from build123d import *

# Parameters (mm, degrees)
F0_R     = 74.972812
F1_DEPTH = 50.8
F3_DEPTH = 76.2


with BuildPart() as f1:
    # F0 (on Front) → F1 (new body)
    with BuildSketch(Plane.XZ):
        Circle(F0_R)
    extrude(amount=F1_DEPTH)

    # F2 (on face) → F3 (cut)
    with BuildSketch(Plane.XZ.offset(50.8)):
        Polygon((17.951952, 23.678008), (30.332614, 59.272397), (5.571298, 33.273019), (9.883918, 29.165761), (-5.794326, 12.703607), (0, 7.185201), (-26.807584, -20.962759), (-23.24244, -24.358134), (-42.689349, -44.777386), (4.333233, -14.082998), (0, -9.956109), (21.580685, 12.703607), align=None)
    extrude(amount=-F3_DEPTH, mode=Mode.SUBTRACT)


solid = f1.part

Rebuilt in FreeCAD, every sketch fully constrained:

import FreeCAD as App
import Part
import Sketcher
from FreeCAD import Vector
Q = App.Units.Quantity


def add_polygon(sketch, points):
    """Adds a closed chain of lines whose ends are joined by coincident constraints."""
    first, n = sketch.GeometryCount, len(points)
    for a, b in zip(points, points[1:] + points[:1]):
        sketch.addGeometry(Part.LineSegment(App.Vector(*a, 0), App.Vector(*b, 0)), False)
    for i in range(n):
        sketch.addConstraint(Sketcher.Constraint("Coincident", first + i, 2, first + (i + 1) % n, 1))

doc = App.newDocument("Part")
body = doc.addObject("PartDesign::Body", "Body")

sketch1 = doc.addObject("Sketcher::SketchObject", "Sketch")
body.addObject(sketch1)
sketch1.AttachmentSupport = (doc.XZ_Plane, [""])
sketch1.MapMode = "FlatFace"
sketch1.addGeometry(Part.Circle(Vector(0, 0, 0), Vector(0, 0, 1), 75), False)
sketch1.addConstraint(Sketcher.Constraint("Coincident", 0, 3, -1, 1))
sketch1.addConstraint(Sketcher.Constraint("Diameter", 0, Q("149.945624 mm")))
pad1 = doc.addObject("PartDesign::Pad", "Pad")
body.addObject(pad1)
pad1.Profile = sketch1
pad1.Length = Q("2 in")

sketch2 = doc.addObject("Sketcher::SketchObject", "Sketch001")
body.addObject(sketch2)
sketch2.AttachmentSupport = (doc.XZ_Plane, [""])
sketch2.MapMode = "FlatFace"
sketch2.AttachmentOffset = App.Placement(Vector(0, 0, 2 * 25.4), App.Rotation())
add_polygon(sketch2, [(18, 23.7), (30.3, 59.3), (5.6, 33.3), (9.9, 29.2), (-5.8, 12.7), (0, 7.2), (-26.8, -21), (-23.2, -24.4), (-42.7, -44.8), (4.3, -14.1), (0, -10), (21.6, 12.7)])
sketch2.addConstraint(Sketcher.Constraint("PointOnObject", 4, 2, -2))
sketch2.addConstraint(Sketcher.Constraint("PointOnObject", 9, 2, -2))
sketch2.addConstraint(Sketcher.Constraint("Perpendicular", 1, 2))
sketch2.addConstraint(Sketcher.Constraint("Perpendicular", 2, 3))
sketch2.addConstraint(Sketcher.Constraint("Perpendicular", 3, 4))
sketch2.addConstraint(Sketcher.Constraint("Perpendicular", 4, 5))
sketch2.addConstraint(Sketcher.Constraint("Perpendicular", 5, 6))
sketch2.addConstraint(Sketcher.Constraint("Perpendicular", 6, 7))
sketch2.addConstraint(Sketcher.Constraint("Perpendicular", 7, 9))
sketch2.addConstraint(Sketcher.Constraint("Perpendicular", 9, 10))
sketch2.addConstraint(Sketcher.Constraint("Horizontal", 3, 2, 10, 2))
sketch2.addConstraint(Sketcher.Constraint("DistanceY", -1, 1, 4, 2, Q("7.185201 mm")))
sketch2.addConstraint(Sketcher.Constraint("DistanceY", 8, 2, 4, 2, Q("21.268199 mm")))
sketch2.addConstraint(Sketcher.Constraint("DistanceY", 10, 2, 11, 2, Q("10.974401 mm")))
sketch2.addConstraint(Sketcher.Constraint("Distance", 0, Q("37.686089 mm")))
sketch2.addConstraint(Sketcher.Constraint("Distance", 4, Q("8.001688 mm")))
sketch2.addConstraint(Sketcher.Constraint("Distance", 9, Q("5.983989 mm")))
sketch2.addConstraint(Sketcher.Constraint("Distance", 10, Q("31.291991 mm")))
sketch2.addConstraint(Sketcher.Constraint("Distance", 11, Q("11.558771 mm")))
sketch2.addConstraint(Sketcher.Constraint("DistanceY", -1, 1, 1, 2, Q("33.273019 mm")))
sketch2.addConstraint(Sketcher.Constraint("DistanceY", -1, 1, 2, 2, Q("29.165761 mm")))
sketch2.addConstraint(Sketcher.Constraint("DistanceY", 5, 2, -1, 1, Q("20.962759 mm")))
sketch2.addConstraint(Sketcher.Constraint("DistanceX", 6, 2, -1, 1, Q("23.24244 mm")))
sketch2.addConstraint(Sketcher.Constraint("DistanceX", 7, 2, -1, 1, Q("42.689349 mm")))
pocket1 = doc.addObject("PartDesign::Pocket", "Pocket")
body.addObject(pocket1)
pocket1.Profile = sketch2
pocket1.Length = Q("3 in")

doc.recompute()
